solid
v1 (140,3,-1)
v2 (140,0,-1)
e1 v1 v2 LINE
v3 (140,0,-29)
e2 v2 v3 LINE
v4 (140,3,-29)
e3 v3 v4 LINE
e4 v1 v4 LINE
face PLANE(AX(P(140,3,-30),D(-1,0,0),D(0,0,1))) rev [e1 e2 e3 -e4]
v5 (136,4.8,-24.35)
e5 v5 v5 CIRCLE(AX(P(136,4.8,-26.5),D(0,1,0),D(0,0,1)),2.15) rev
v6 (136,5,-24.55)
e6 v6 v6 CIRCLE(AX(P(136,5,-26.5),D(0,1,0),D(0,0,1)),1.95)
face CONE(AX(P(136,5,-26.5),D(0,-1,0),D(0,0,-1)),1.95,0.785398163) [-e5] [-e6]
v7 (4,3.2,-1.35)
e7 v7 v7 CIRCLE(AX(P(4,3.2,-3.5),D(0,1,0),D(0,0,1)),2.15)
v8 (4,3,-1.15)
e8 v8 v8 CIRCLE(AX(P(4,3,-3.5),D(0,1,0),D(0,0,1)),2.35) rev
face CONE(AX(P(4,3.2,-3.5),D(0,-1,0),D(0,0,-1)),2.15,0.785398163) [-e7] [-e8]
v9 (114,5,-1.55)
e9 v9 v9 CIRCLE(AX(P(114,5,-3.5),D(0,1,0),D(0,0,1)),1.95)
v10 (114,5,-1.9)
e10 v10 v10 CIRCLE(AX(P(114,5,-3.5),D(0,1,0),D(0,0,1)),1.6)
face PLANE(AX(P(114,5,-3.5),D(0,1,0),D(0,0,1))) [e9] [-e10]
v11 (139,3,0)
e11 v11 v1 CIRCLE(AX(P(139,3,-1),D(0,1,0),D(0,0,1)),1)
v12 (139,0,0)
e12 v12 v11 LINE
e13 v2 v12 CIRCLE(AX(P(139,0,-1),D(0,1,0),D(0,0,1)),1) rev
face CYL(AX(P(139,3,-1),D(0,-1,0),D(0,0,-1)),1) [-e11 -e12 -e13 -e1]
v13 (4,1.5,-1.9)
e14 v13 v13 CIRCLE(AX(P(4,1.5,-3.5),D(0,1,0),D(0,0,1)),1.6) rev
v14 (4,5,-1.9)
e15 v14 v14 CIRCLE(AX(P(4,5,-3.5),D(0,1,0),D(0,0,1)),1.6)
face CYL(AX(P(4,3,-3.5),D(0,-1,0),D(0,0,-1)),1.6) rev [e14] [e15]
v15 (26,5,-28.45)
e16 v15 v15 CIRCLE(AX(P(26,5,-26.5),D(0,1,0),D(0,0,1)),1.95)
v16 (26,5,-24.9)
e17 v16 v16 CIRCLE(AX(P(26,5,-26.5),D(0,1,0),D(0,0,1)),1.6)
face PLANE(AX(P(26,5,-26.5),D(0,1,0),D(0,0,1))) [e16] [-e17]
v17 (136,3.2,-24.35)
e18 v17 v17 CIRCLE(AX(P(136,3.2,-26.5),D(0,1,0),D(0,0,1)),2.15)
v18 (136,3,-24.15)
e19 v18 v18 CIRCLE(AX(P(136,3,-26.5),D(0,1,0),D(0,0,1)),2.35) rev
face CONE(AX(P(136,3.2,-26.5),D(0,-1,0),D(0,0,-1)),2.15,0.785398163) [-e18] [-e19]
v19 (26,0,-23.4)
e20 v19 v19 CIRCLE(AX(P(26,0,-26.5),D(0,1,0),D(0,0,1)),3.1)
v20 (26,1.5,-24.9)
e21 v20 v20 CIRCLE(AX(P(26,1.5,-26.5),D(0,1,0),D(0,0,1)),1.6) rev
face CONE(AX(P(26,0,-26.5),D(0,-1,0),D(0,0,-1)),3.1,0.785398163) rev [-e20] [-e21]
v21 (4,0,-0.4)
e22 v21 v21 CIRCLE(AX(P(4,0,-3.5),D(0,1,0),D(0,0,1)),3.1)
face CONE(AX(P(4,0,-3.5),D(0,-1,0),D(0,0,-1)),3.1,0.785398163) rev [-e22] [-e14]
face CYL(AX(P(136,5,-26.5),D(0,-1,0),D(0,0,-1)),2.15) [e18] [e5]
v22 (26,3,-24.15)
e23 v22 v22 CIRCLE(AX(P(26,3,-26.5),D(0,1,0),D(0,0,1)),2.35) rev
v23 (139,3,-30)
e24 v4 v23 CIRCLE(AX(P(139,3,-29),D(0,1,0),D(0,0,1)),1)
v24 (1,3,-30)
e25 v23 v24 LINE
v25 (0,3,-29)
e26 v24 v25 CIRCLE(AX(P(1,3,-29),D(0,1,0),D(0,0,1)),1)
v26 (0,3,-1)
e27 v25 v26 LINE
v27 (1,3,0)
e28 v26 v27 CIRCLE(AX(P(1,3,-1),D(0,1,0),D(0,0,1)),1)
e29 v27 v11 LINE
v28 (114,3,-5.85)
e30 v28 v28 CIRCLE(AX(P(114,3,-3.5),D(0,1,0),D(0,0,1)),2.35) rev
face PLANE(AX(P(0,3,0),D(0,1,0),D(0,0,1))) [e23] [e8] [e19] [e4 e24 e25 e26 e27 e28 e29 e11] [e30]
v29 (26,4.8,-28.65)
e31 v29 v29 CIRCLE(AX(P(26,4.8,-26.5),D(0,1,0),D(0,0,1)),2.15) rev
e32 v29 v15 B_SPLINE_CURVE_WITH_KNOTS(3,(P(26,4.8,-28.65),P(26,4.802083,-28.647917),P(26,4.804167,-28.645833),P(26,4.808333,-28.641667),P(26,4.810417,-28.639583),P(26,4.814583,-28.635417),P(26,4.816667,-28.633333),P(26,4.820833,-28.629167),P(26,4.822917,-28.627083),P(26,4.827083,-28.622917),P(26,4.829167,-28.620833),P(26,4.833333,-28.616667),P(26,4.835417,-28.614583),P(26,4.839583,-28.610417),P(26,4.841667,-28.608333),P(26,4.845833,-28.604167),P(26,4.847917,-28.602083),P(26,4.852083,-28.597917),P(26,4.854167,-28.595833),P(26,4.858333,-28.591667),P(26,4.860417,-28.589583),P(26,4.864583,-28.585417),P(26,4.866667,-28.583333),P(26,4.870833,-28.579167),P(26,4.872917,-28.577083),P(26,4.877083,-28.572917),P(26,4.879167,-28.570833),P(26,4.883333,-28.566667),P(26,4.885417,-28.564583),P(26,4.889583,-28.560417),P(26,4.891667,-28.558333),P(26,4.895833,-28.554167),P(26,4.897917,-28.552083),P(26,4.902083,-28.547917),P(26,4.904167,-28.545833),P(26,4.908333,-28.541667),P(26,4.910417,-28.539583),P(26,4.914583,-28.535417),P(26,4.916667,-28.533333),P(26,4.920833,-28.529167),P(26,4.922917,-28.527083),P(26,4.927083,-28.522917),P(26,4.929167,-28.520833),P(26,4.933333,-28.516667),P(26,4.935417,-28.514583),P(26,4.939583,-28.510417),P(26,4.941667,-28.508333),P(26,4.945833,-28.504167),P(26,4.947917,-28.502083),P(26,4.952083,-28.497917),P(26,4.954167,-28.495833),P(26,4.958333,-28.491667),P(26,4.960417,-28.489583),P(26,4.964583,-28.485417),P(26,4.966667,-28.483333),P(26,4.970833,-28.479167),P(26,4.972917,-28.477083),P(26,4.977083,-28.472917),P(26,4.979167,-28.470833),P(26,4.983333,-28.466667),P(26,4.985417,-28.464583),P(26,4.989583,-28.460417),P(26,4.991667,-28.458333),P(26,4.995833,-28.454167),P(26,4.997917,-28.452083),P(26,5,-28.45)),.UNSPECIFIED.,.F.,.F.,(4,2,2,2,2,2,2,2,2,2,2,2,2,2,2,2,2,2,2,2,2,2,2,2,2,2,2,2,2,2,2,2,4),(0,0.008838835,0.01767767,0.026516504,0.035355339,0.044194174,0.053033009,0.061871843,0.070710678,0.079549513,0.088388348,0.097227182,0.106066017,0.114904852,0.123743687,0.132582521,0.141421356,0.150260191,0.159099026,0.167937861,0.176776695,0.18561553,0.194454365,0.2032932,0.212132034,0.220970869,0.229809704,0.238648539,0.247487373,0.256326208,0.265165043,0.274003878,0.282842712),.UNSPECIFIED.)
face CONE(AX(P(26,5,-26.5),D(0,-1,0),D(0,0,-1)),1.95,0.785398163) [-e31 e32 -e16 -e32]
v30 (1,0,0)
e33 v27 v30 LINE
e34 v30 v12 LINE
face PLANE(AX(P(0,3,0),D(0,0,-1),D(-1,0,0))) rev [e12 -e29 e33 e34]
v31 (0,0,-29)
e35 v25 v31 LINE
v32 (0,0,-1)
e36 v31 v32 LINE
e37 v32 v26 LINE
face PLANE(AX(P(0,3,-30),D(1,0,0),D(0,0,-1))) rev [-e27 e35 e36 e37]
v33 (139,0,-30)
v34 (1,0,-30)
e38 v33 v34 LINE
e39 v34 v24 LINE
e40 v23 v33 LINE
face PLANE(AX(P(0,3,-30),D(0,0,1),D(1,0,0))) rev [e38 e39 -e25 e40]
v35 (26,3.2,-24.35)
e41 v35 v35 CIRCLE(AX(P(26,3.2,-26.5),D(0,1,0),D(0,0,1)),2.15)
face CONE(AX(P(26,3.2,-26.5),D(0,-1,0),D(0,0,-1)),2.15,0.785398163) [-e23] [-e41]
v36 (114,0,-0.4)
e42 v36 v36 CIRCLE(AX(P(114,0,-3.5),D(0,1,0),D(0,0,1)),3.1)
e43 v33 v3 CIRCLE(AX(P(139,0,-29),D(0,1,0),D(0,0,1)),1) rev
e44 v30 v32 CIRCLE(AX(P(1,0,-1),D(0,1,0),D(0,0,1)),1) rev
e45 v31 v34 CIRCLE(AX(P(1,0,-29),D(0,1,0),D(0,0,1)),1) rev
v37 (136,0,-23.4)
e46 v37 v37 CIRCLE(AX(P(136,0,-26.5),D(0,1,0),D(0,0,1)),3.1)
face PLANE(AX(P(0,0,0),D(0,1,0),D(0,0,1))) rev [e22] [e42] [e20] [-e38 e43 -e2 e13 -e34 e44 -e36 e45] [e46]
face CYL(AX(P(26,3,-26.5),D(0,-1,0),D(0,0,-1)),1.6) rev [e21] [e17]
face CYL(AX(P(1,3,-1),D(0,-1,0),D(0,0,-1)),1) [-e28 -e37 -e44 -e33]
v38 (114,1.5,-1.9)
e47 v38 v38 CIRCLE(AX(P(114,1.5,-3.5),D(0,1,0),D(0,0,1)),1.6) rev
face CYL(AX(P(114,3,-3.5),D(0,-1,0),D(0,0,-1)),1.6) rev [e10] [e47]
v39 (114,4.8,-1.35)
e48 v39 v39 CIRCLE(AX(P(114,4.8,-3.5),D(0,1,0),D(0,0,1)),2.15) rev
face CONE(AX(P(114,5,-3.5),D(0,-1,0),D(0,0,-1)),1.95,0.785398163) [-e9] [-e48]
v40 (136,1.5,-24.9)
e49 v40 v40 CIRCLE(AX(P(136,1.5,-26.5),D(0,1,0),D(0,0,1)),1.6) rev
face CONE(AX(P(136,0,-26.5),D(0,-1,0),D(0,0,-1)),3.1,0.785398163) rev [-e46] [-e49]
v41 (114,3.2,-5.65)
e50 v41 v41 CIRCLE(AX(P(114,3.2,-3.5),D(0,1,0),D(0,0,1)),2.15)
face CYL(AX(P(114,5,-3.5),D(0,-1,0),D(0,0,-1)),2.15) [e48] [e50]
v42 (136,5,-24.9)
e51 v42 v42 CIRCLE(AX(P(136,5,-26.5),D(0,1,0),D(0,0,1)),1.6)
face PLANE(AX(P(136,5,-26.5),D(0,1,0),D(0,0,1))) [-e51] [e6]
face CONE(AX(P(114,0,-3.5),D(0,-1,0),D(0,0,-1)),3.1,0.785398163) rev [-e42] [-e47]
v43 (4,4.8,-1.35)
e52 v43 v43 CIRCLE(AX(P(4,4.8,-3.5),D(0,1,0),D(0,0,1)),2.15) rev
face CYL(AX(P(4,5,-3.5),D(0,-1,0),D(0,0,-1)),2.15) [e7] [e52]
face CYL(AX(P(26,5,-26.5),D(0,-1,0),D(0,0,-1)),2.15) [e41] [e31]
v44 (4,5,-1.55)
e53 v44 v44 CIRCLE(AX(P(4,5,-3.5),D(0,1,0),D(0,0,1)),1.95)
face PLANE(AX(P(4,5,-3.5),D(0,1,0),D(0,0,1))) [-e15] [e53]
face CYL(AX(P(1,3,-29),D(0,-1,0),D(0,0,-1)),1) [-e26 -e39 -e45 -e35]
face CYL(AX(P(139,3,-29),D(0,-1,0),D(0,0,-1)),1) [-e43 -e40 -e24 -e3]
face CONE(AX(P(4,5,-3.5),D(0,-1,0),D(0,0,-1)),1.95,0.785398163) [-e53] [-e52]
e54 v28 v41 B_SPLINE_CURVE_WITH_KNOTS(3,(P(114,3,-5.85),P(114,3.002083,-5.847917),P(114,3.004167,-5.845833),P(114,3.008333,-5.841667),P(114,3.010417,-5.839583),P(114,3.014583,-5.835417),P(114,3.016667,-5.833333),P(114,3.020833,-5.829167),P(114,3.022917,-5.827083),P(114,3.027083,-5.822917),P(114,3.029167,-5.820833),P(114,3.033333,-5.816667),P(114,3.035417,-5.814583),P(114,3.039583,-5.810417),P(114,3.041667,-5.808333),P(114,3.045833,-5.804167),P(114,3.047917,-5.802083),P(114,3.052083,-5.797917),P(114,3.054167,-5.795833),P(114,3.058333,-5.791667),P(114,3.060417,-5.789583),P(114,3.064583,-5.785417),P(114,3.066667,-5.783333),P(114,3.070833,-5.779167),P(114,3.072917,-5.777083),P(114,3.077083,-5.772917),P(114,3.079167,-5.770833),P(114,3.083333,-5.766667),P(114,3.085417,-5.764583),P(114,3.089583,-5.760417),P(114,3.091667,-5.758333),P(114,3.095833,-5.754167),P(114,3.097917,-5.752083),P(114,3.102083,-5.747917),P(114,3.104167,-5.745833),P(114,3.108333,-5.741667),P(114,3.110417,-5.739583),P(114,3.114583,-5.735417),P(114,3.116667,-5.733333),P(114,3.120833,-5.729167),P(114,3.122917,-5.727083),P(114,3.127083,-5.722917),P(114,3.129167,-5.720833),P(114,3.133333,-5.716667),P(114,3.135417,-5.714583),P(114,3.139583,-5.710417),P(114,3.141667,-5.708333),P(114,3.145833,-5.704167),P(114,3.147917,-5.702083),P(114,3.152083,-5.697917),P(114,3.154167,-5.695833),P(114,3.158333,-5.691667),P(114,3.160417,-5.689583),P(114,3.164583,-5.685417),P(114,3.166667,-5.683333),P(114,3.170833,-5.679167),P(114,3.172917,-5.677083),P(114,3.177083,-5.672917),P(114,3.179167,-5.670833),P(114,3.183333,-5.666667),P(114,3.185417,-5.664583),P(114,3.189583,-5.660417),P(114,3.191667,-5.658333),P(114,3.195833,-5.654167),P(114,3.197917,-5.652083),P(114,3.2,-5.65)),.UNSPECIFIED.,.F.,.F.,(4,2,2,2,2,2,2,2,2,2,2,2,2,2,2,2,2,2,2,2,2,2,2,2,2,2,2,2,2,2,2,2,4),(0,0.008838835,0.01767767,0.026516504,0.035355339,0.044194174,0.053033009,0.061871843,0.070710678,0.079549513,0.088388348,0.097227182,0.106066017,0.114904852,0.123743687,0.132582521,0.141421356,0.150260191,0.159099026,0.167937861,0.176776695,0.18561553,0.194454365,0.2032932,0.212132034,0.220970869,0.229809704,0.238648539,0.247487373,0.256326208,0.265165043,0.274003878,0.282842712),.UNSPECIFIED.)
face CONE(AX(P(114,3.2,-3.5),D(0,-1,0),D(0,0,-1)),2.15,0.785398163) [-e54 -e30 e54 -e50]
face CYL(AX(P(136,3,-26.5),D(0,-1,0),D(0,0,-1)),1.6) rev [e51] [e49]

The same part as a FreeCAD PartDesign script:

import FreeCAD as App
import Part
import Sketcher
from FreeCAD import Vector
Q = App.Units.Quantity


def edges_at(feature, points):
    """Names of the edges that pass closest to the given points."""
    edges = feature.Shape.Edges
    near = lambda p: min(range(len(edges)), key=lambda i: edges[i].distToShape(Part.Vertex(*p))[0])
    return sorted({f"Edge{near(p) + 1}" for p in points})


def add_polygon(sketch, points):
    """Adds a closed chain of lines whose ends are joined by coincident constraints."""
    first, n = sketch.GeometryCount, len(points)
    for a, b in zip(points, points[1:] + points[:1]):
        sketch.addGeometry(Part.LineSegment(App.Vector(*a, 0), App.Vector(*b, 0)), False)
    for i in range(n):
        sketch.addConstraint(Sketcher.Constraint("Coincident", first + i, 2, first + (i + 1) % n, 1))

doc = App.newDocument("Part")
body = doc.addObject("PartDesign::Body", "Body")

# Sketch on XZ plane
sketch1 = doc.addObject("Sketcher::SketchObject", "Sketch")
body.addObject(sketch1)
sketch1.AttachmentSupport = (doc.XZ_Plane, [""])
sketch1.MapMode = "FlatFace"
add_polygon(sketch1, [(0, -30), (0, 0), (140, 0), (140, -30)])  # lines 0-3
sketch1.addGeometry(Part.Circle(Vector(4, -3.5, 0), Vector(0, 0, 1), 1.6), False)  # 4
sketch1.addGeometry(Part.Circle(Vector(114, -3.5, 0), Vector(0, 0, 1), 1.6), False)  # 5
sketch1.addGeometry(Part.Circle(Vector(26, -26.5, 0), Vector(0, 0, 1), 1.6), False)  # 6
sketch1.addGeometry(Part.Circle(Vector(136, -26.5, 0), Vector(0, 0, 1), 1.6), False)  # 7
sketch1.addConstraint(Sketcher.Constraint("Vertical", 0))
sketch1.addConstraint(Sketcher.Constraint("Horizontal", 1))
sketch1.addConstraint(Sketcher.Constraint("Vertical", 2))
sketch1.addConstraint(Sketcher.Constraint("Horizontal", 3))
sketch1.addConstraint(Sketcher.Constraint("Coincident", 0, 2, -1, 1))
sketch1.addConstraint(Sketcher.Constraint("Equal", 4, 5))
sketch1.addConstraint(Sketcher.Constraint("Equal", 5, 6))
sketch1.addConstraint(Sketcher.Constraint("Equal", 6, 7))
sketch1.addConstraint(Sketcher.Constraint("Horizontal", 4, 3, 5, 3))
sketch1.addConstraint(Sketcher.Constraint("Horizontal", 6, 3, 7, 3))
sketch1.addConstraint(Sketcher.Constraint("Diameter", 4, Q("3.2 mm")))
sketch1.addConstraint(Sketcher.Constraint("DistanceX", 1, 1, 1, 2, Q("140 mm")))
sketch1.addConstraint(Sketcher.Constraint("DistanceY", 0, 1, 0, 2, Q("30 mm")))
sketch1.addConstraint(Sketcher.Constraint("DistanceX", -1, 1, 4, 3, Q("4 mm")))
sketch1.addConstraint(Sketcher.Constraint("DistanceX", -1, 1, 5, 3, Q("114 mm")))
sketch1.addConstraint(Sketcher.Constraint("DistanceX", -1, 1, 6, 3, Q("26 mm")))
sketch1.addConstraint(Sketcher.Constraint("DistanceX", -1, 1, 7, 3, Q("136 mm")))
sketch1.addConstraint(Sketcher.Constraint("DistanceY", 6, 3, 4, 3, Q("23 mm")))
sketch1.addConstraint(Sketcher.Constraint("DistanceY", 4, 3, -1, 1, Q("3.5 mm")))
pad1 = doc.addObject("PartDesign::Pad", "Pad")
body.addObject(pad1)
pad1.Profile = sketch1
pad1.Length = 3
pad1.Reversed = True

# Sketch on XZ plane
sketch2 = doc.addObject("Sketcher::SketchObject", "Sketch001")
body.addObject(sketch2)
sketch2.AttachmentSupport = (doc.XZ_Plane, [""])
sketch2.MapMode = "FlatFace"
sketch2.AttachmentOffset = App.Placement(Vector(0, 0, -3), App.Rotation())
sketch2.addGeometry(Part.Circle(Vector(4, -3.5, 0), Vector(0, 0, 1), 2.1), False)
sketch2.addGeometry(Part.Circle(Vector(4, -3.5, 0), Vector(0, 0, 1), 1.6), False)
sketch2.addGeometry(Part.Circle(Vector(26, -26.5, 0), Vector(0, 0, 1), 2.1), False)
sketch2.addGeometry(Part.Circle(Vector(26, -26.5, 0), Vector(0, 0, 1), 1.6), False)
sketch2.addGeometry(Part.Circle(Vector(114, -3.5, 0), Vector(0, 0, 1), 2.1), False)
sketch2.addGeometry(Part.Circle(Vector(114, -3.5, 0), Vector(0, 0, 1), 1.6), False)
sketch2.addGeometry(Part.Circle(Vector(136, -26.5, 0), Vector(0, 0, 1), 2.1), False)
sketch2.addGeometry(Part.Circle(Vector(136, -26.5, 0), Vector(0, 0, 1), 1.6), False)
sketch2.addConstraint(Sketcher.Constraint("Coincident", 1, 3, 0, 3))
sketch2.addConstraint(Sketcher.Constraint("Coincident", 3, 3, 2, 3))
sketch2.addConstraint(Sketcher.Constraint("Coincident", 5, 3, 4, 3))
sketch2.addConstraint(Sketcher.Constraint("Coincident", 7, 3, 6, 3))
sketch2.addConstraint(Sketcher.Constraint("Equal", 0, 2))
sketch2.addConstraint(Sketcher.Constraint("Equal", 1, 3))
sketch2.addConstraint(Sketcher.Constraint("Equal", 2, 4))
sketch2.addConstraint(Sketcher.Constraint("Equal", 3, 5))
sketch2.addConstraint(Sketcher.Constraint("Equal", 4, 6))
sketch2.addConstraint(Sketcher.Constraint("Equal", 5, 7))
sketch2.addConstraint(Sketcher.Constraint("Horizontal", 1, 3, 4, 3))
sketch2.addConstraint(Sketcher.Constraint("Horizontal", 3, 3, 6, 3))
sketch2.addConstraint(Sketcher.Constraint("Diameter", 0, Q("4.3 mm")))
sketch2.addConstraint(Sketcher.Constraint("Diameter", 1, Q("3.2 mm")))
sketch2.addConstraint(Sketcher.Constraint("DistanceX", -1, 1, 0, 3, Q("4 mm")))
sketch2.addConstraint(Sketcher.Constraint("DistanceX", -1, 1, 2, 3, Q("26 mm")))
sketch2.addConstraint(Sketcher.Constraint("DistanceX", -1, 1, 4, 3, Q("114 mm")))
sketch2.addConstraint(Sketcher.Constraint("DistanceX", -1, 1, 6, 3, Q("136 mm")))
sketch2.addConstraint(Sketcher.Constraint("DistanceY", 2, 3, 0, 3, Q("23 mm")))
sketch2.addConstraint(Sketcher.Constraint("DistanceY", 0, 3, -1, 1, Q("3.5 mm")))
pad2 = doc.addObject("PartDesign::Pad", "Pad001")
body.addObject(pad2)
pad2.Profile = sketch2
pad2.Length = 2
pad2.Reversed = True
doc.recompute()

chamfer = doc.addObject("PartDesign::Chamfer", "Chamfer")
body.addObject(chamfer)
chamfer.Base = (pad2, edges_at(pad2, [
    (4, 5, -5.65),
    (4, 3, -5.65),
    (26, 5, -28.65),
    (26, 3, -28.65),
    (114, 5, -5.65),
    (114, 3, -5.65),
    (136, 5, -28.65),
    (136, 3, -28.65),
]))
chamfer.Size = 0.2
doc.recompute()

chamfer2 = doc.addObject("PartDesign::Chamfer", "Chamfer001")
body.addObject(chamfer2)
chamfer2.Base = (chamfer, edges_at(chamfer, [
    (4, 0, -5.1),
    (26, 0, -28.1),
    (114, 0, -5.1),
    (136, 0, -28.1),
]))
chamfer2.Size = 1.5
doc.recompute()

fillet = doc.addObject("PartDesign::Fillet", "Fillet")
body.addObject(fillet)
fillet.Base = (chamfer2, edges_at(chamfer2, [
    (0, 1.5, -30),
    (140, 1.5, -30),
    (140, 1.5, 0),
    (0, 1.5, 0),
]))
fillet.Radius = 1

doc.recompute()
